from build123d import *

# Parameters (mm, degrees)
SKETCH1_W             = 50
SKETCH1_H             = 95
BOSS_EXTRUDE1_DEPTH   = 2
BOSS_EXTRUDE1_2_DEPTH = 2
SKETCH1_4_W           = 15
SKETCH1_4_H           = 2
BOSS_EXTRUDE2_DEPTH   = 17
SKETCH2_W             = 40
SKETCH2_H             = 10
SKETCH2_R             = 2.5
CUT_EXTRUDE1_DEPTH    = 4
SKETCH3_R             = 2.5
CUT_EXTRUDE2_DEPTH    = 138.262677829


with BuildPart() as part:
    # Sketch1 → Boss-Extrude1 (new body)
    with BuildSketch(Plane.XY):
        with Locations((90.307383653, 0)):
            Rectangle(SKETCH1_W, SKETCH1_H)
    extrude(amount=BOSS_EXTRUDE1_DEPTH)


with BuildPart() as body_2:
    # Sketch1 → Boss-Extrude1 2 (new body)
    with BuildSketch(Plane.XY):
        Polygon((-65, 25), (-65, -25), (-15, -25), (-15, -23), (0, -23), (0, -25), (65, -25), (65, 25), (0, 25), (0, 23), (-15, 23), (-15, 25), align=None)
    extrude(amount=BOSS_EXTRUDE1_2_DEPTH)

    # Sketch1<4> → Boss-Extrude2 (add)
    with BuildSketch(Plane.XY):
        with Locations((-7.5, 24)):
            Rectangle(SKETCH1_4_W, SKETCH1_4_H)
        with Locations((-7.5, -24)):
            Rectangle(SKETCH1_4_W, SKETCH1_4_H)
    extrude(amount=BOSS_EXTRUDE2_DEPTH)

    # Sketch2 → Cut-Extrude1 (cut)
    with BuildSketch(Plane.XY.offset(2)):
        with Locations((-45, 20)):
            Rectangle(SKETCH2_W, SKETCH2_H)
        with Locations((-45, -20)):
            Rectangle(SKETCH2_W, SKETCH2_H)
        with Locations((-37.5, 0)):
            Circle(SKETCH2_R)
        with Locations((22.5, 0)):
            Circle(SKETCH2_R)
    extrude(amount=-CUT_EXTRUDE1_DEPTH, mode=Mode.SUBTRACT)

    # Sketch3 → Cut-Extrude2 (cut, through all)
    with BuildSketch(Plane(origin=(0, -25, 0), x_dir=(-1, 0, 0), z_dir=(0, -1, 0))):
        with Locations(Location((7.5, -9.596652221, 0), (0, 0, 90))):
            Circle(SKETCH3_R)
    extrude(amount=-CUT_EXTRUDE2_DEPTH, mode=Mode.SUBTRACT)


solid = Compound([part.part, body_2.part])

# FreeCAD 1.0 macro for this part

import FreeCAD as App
import Part
import Sketcher

V = App.Vector


def add_polygon(sketch, points):
    """Adds a closed chain of lines whose ends are joined by coincident constraints."""
    first, n = sketch.GeometryCount, len(points)
    for a, b in zip(points, points[1:] + points[:1]):
        sketch.addGeometry(Part.LineSegment(App.Vector(*a, 0), App.Vector(*b, 0)), False)
    for i in range(n):
        sketch.addConstraint(Sketcher.Constraint("Coincident", first + i, 2, first + (i + 1) % n, 1))

doc = App.newDocument("Part")
body = doc.addObject("PartDesign::Body", "Body")

sketch1 = body.newObject("Sketcher::SketchObject", "Sketch")
sketch1.AttachmentSupport = (doc.getObject("XY_Plane"), [""])
sketch1.MapMode = "FlatFace"
add_polygon(sketch1, [(65, 48), (65, -48), (115, -48), (115, 48)])
sketch1.addConstraint(Sketcher.Constraint("Vertical", 0))
sketch1.addConstraint(Sketcher.Constraint("Horizontal", 1))
sketch1.addConstraint(Sketcher.Constraint("Vertical", 2))
sketch1.addConstraint(Sketcher.Constraint("Horizontal", 3))
sketch1.addConstraint(Sketcher.Constraint("DistanceX", 1, 1, 1, 2, 50.0))
sketch1.addConstraint(Sketcher.Constraint("DistanceY", 0, 2, 0, 1, 95.0))
sketch1.addConstraint(Sketcher.Constraint("DistanceY", 0, 2, -1, 1, 47.5))
sketch1.addConstraint(Sketcher.Constraint("DistanceX", -1, 1, 0, 2, 65.307384))
pad1 = body.newObject("PartDesign::Pad", "Pad")
pad1.Profile = sketch1
pad1.Length = 2
body2 = doc.addObject("PartDesign::Body", "Body001")

sketch2 = body2.newObject("Sketcher::SketchObject", "Sketch001")
sketch2.AttachmentSupport = (doc.getObject("XY_Plane001"), [""])
sketch2.MapMode = "FlatFace"
add_polygon(sketch2, [(-65, 25), (-65, -25), (-15, -25), (-15, -23), (0, -23), (0, -25), (65, -25), (65, 25), (0, 25), (0, 23), (-15, 23), (-15, 25)])
sketch2.addConstraint(Sketcher.Constraint("Vertical", 0))
sketch2.addConstraint(Sketcher.Constraint("Horizontal", 1))
sketch2.addConstraint(Sketcher.Constraint("Vertical", 2))
sketch2.addConstraint(Sketcher.Constraint("Horizontal", 3))
sketch2.addConstraint(Sketcher.Constraint("Vertical", 4))
sketch2.addConstraint(Sketcher.Constraint("Horizontal", 5))
sketch2.addConstraint(Sketcher.Constraint("Vertical", 6))
sketch2.addConstraint(Sketcher.Constraint("Horizontal", 7))
sketch2.addConstraint(Sketcher.Constraint("Vertical", 8))
sketch2.addConstraint(Sketcher.Constraint("Horizontal", 9))
sketch2.addConstraint(Sketcher.Constraint("Vertical", 10))
sketch2.addConstraint(Sketcher.Constraint("Horizontal", 11))
sketch2.addConstraint(Sketcher.Constraint("Symmetric", 0, 2, 6, 2, -1, 1))
sketch2.addConstraint(Sketcher.Constraint("Symmetric", 4, 2, 7, 2, -1, 1))
sketch2.addConstraint(Sketcher.Constraint("Symmetric", 3, 2, 8, 2, -1))
sketch2.addConstraint(Sketcher.Constraint("Symmetric", 1, 2, 10, 2, -1))
sketch2.addConstraint(Sketcher.Constraint("Equal", 11, 0))
sketch2.addConstraint(Sketcher.Constraint("DistanceX", 1, 1, 1, 2, 50.0))
sketch2.addConstraint(Sketcher.Constraint("DistanceX", 3, 1, 3, 2, 15.0))
sketch2.addConstraint(Sketcher.Constraint("DistanceY", 2, 1, 2, 2, 2.0))
pad2 = body2.newObject("PartDesign::Pad", "Pad001")
pad2.Profile = sketch2
pad2.Length = 2

sketch3 = body2.newObject("Sketcher::SketchObject", "Sketch002")
sketch3.AttachmentSupport = (doc.getObject("XY_Plane001"), [""])
sketch3.MapMode = "FlatFace"
add_polygon(sketch3, [(-15, 25), (-15, 23), (0, 23), (0, 25)])
add_polygon(sketch3, [(-15, -23), (-15, -25), (0, -25), (0, -23)])
sketch3.addConstraint(Sketcher.Constraint("Vertical", 0))
sketch3.addConstraint(Sketcher.Constraint("Horizontal", 1))
sketch3.addConstraint(Sketcher.Constraint("Vertical", 2))
sketch3.addConstraint(Sketcher.Constraint("Horizontal", 3))
sketch3.addConstraint(Sketcher.Constraint("Vertical", 4))
sketch3.addConstraint(Sketcher.Constraint("Horizontal", 5))
sketch3.addConstraint(Sketcher.Constraint("Vertical", 6))
sketch3.addConstraint(Sketcher.Constraint("Horizontal", 7))
sketch3.addConstraint(Sketcher.Constraint("Symmetric", 2, 2, 5, 2, -1, 1))
sketch3.addConstraint(Sketcher.Constraint("Symmetric", 1, 2, 6, 2, -1))
sketch3.addConstraint(Sketcher.Constraint("Vertical", 3, 2, 4, 2))
sketch3.addConstraint(Sketcher.Constraint("DistanceX", 1, 1, 1, 2, 15.0))
sketch3.addConstraint(Sketcher.Constraint("DistanceY", 0, 2, 0, 1, 2.0))
sketch3.addConstraint(Sketcher.Constraint("DistanceY", -1, 1, 0, 2, 23.0))
pad3 = body2.newObject("PartDesign::Pad", "Pad002")
pad3.Profile = sketch3
pad3.Length = 17

sketch4 = body2.newObject("Sketcher::SketchObject", "Sketch003")
sketch4.AttachmentSupport = (doc.getObject("XY_Plane001"), [""])
sketch4.MapMode = "FlatFace"
sketch4.AttachmentOffset = App.Placement(V(0, 0, 2), App.Rotation())
add_polygon(sketch4, [(-65, 25), (-65, 15), (-25, 15), (-25, 25)])
add_polygon(sketch4, [(-65, -15), (-65, -25), (-25, -25), (-25, -15)])
sketch4.addGeometry(Part.Circle(V(-37.5, 0, 0), V(0, 0, 1), 2.5), False)
sketch4.addGeometry(Part.Circle(V(22.5, 0, 0), V(0, 0, 1), 2.5), False)
sketch4.addConstraint(Sketcher.Constraint("Vertical", 0))
sketch4.addConstraint(Sketcher.Constraint("Horizontal", 1))
sketch4.addConstraint(Sketcher.Constraint("Vertical", 2))
sketch4.addConstraint(Sketcher.Constraint("Horizontal", 3))
sketch4.addConstraint(Sketcher.Constraint("Vertical", 4))
sketch4.addConstraint(Sketcher.Constraint("Horizontal", 5))
sketch4.addConstraint(Sketcher.Constraint("Vertical", 6))
sketch4.addConstraint(Sketcher.Constraint("Horizontal", 7))
sketch4.addConstraint(Sketcher.Constraint("Equal", 8, 9))
sketch4.addConstraint(Sketcher.Constraint("Symmetric", 3, 2, 4, 2, -1))
sketch4.addConstraint(Sketcher.Constraint("Symmetric", 1, 2, 6, 2, -1))
sketch4.addConstraint(Sketcher.Constraint("PointOnObject", 8, 3, -1))
sketch4.addConstraint(Sketcher.Constraint("PointOnObject", 9, 3, -1))
sketch4.addConstraint(Sketcher.Constraint("Diameter", 8, 5.0))
sketch4.addConstraint(Sketcher.Constraint("DistanceX", 1, 1, 1, 2, 40.0))
sketch4.addConstraint(Sketcher.Constraint("DistanceY", 0, 2, 0, 1, 10.0))
sketch4.addConstraint(Sketcher.Constraint("DistanceX", 0, 2, -1, 1, 65.0))
sketch4.addConstraint(Sketcher.Constraint("DistanceY", -1, 1, 0, 2, 15.0))
sketch4.addConstraint(Sketcher.Constraint("DistanceX", 8, 3, 9, 3, 60.0))
sketch4.addConstraint(Sketcher.Constraint("DistanceX", 8, 3, -1, 1, 37.5))
pocket1 = body2.newObject("PartDesign::Pocket", "Pocket")
pocket1.Profile = sketch4
pocket1.Length = 4

sketch5 = body2.newObject("Sketcher::SketchObject", "Sketch004")
sketch5.AttachmentSupport = (doc.getObject("XZ_Plane001"), [""])
sketch5.MapMode = "FlatFace"
sketch5.AttachmentOffset = App.Placement(V(0, 0, 25), App.Rotation())
sketch5.addGeometry(Part.Circle(V(-7.5, 9.6, 0), V(0, 0, 1), 2.5), False)
sketch5.addConstraint(Sketcher.Constraint("Diameter", 0, 5.0))
sketch5.addConstraint(Sketcher.Constraint("DistanceX", 0, 3, -1, 1, 7.5))
sketch5.addConstraint(Sketcher.Constraint("DistanceY", -1, 1, 0, 3, 9.596652))
pocket2 = body2.newObject("PartDesign::Pocket", "Pocket001")
pocket2.Profile = sketch5
pocket2.Type = "ThroughAll"

doc.recompute()
